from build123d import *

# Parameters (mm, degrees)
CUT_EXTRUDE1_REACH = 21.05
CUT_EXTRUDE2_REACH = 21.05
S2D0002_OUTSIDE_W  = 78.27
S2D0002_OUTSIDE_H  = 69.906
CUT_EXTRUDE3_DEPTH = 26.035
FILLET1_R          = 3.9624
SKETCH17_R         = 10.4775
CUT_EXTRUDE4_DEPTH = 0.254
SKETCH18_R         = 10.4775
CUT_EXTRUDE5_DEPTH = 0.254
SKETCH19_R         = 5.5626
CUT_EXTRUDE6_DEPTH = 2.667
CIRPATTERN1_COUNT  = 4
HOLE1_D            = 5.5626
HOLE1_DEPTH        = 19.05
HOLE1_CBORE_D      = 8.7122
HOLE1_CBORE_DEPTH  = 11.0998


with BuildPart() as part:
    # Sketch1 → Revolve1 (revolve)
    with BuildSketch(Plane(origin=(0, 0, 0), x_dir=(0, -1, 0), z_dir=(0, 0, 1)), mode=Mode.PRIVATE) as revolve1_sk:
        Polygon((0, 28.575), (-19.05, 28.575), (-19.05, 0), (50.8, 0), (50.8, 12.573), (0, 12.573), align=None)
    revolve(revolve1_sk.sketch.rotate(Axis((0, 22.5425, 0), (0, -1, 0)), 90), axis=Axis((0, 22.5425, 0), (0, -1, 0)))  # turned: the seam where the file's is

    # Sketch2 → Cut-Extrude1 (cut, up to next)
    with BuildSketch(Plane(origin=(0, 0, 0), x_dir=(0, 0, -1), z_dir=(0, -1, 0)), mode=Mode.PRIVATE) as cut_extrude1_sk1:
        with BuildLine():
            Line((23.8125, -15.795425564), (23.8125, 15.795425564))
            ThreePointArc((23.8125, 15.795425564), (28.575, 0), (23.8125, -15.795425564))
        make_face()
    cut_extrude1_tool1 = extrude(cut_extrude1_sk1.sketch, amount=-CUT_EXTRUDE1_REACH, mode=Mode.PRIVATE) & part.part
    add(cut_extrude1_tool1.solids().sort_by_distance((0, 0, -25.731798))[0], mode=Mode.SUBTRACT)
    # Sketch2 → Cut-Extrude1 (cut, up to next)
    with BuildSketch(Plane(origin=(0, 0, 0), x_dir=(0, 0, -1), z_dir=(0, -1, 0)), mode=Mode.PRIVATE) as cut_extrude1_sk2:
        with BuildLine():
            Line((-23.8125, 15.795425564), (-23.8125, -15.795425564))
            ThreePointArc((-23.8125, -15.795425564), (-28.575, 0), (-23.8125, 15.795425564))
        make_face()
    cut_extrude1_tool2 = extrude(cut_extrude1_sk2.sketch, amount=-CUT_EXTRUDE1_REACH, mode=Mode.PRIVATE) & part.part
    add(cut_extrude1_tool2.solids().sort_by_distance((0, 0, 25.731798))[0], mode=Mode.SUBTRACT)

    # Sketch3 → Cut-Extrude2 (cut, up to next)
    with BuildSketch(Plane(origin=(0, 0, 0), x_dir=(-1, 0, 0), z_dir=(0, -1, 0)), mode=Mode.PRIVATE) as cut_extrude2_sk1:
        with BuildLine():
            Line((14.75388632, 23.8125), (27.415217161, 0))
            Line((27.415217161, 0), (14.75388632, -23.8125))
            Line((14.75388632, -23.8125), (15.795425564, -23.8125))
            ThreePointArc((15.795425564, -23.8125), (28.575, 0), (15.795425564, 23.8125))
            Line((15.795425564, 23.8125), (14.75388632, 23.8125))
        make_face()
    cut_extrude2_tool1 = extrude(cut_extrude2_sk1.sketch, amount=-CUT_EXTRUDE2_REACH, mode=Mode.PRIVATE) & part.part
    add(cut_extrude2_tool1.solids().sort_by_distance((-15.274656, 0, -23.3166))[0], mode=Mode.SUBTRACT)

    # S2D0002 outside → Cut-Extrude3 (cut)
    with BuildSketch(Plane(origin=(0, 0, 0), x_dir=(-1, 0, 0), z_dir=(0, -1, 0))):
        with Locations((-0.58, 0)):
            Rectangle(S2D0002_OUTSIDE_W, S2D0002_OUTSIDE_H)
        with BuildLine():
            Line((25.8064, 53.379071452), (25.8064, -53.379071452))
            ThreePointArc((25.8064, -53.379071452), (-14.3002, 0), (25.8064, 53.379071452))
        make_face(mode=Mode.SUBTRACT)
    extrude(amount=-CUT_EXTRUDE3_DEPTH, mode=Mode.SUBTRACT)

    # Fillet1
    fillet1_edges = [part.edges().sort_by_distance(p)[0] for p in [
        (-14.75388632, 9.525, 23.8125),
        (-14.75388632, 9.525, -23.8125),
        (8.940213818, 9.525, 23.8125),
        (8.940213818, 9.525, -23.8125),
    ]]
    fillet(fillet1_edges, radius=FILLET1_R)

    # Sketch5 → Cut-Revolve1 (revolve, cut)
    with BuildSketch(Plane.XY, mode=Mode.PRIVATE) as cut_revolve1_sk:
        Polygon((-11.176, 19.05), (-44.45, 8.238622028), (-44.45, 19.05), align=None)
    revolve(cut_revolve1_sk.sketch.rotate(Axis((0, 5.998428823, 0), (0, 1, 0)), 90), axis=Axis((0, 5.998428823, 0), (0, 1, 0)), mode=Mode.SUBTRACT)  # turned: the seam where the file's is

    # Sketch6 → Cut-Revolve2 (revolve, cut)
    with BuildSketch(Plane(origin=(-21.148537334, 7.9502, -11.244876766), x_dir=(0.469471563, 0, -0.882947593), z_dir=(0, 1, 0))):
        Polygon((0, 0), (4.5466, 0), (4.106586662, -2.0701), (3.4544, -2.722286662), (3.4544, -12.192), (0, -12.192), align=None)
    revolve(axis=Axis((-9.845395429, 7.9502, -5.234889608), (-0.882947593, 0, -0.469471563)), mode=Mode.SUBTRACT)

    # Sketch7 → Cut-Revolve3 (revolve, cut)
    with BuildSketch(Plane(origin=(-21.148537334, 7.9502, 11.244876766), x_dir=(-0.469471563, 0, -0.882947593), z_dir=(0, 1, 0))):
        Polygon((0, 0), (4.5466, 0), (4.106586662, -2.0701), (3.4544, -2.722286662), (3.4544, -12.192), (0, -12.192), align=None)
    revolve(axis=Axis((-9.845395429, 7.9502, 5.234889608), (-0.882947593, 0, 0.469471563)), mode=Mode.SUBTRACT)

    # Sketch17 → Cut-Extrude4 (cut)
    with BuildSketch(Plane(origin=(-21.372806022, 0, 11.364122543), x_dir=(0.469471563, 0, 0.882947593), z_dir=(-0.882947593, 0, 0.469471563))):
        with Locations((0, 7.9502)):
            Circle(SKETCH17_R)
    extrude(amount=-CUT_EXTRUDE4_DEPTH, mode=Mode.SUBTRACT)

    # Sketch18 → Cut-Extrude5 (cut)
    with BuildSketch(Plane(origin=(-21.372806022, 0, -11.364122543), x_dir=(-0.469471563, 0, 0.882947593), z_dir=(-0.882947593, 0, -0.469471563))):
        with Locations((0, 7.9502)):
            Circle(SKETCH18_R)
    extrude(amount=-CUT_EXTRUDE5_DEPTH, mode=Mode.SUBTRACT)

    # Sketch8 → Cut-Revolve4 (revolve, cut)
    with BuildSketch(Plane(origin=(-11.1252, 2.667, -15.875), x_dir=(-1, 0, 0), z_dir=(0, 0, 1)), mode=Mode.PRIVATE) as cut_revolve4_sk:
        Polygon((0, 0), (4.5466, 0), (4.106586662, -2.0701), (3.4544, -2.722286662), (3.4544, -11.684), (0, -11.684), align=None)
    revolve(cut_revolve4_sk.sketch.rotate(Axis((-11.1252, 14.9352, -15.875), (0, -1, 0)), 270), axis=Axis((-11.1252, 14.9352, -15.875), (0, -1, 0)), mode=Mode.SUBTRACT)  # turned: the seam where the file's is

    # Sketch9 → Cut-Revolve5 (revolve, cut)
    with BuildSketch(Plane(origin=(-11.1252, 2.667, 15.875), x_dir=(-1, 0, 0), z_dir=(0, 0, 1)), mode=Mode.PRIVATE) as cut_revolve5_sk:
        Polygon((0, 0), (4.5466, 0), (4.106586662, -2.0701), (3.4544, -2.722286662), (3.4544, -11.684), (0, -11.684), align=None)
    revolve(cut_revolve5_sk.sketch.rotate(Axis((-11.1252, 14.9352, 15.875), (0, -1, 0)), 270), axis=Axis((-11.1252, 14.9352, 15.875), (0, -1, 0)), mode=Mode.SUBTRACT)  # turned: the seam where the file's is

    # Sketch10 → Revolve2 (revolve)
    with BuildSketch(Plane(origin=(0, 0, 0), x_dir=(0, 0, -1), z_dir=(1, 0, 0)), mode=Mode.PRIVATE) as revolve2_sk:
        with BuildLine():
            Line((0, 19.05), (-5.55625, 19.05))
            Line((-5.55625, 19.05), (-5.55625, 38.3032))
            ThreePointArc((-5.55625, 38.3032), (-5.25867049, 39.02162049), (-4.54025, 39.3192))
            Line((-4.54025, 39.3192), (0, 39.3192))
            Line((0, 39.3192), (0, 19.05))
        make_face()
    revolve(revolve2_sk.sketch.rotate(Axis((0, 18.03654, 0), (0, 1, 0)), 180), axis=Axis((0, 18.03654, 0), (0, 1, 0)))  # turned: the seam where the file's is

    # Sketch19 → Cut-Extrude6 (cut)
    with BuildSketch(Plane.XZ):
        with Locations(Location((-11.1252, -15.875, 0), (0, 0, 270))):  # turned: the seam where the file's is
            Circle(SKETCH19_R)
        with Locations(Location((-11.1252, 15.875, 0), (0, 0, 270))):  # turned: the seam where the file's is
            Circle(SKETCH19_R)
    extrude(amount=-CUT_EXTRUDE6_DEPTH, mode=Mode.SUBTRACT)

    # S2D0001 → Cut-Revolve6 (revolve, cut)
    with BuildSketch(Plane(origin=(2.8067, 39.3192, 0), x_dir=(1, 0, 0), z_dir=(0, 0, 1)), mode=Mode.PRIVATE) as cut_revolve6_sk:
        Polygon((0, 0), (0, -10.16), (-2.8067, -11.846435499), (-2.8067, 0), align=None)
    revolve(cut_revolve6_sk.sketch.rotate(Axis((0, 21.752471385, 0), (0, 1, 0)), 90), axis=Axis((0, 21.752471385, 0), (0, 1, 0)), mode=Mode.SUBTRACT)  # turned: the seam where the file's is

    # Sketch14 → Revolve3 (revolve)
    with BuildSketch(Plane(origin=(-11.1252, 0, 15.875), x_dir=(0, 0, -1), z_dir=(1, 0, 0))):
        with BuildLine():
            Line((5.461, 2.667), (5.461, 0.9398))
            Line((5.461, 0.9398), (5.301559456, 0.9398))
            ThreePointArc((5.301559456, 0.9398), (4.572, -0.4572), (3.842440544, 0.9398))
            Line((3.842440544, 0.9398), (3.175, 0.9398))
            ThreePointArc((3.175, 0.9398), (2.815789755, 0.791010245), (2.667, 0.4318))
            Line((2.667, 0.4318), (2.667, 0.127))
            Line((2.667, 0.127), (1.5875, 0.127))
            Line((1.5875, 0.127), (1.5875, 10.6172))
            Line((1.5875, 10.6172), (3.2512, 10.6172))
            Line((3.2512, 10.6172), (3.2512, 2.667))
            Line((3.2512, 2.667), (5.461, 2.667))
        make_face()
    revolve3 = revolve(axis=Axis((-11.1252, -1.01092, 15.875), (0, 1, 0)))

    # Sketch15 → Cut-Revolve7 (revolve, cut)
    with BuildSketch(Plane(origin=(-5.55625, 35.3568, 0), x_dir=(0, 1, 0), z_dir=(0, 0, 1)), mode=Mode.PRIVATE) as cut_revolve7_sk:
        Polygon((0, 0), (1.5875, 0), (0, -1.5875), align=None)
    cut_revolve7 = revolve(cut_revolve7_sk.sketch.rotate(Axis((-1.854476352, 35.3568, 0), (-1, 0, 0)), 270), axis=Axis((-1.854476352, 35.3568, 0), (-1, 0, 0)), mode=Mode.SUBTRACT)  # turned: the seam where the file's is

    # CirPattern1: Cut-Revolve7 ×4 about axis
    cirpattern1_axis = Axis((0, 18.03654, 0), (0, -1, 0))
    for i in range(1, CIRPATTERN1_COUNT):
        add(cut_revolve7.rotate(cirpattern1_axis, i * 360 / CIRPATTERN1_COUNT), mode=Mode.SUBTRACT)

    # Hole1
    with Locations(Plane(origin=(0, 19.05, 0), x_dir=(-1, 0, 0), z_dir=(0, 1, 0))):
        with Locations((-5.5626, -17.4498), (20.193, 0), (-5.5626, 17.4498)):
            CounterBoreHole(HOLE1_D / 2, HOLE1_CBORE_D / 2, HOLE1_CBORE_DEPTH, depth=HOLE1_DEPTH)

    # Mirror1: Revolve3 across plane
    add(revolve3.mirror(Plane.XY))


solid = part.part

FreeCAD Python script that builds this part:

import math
import FreeCAD as App
import Part
import Sketcher

V = App.Vector
Q = App.Units.Quantity


def edges_at(feature, points):
    """Names of the edges that pass closest to the given points."""
    edges = feature.Shape.Edges
    near = lambda p: min(range(len(edges)), key=lambda i: edges[i].distToShape(Part.Vertex(*p))[0])
    return sorted({f"Edge{near(p) + 1}" for p in points})


def add_polygon(sketch, points):
    """Adds a closed chain of lines whose ends are joined by coincident constraints."""
    first, n = sketch.GeometryCount, len(points)
    for a, b in zip(points, points[1:] + points[:1]):
        sketch.addGeometry(Part.LineSegment(App.Vector(*a, 0), App.Vector(*b, 0)), False)
    for i in range(n):
        sketch.addConstraint(Sketcher.Constraint("Coincident", first + i, 2, first + (i + 1) % n, 1))

doc = App.newDocument("Part")
body = doc.addObject("PartDesign::Body", "Body")

sketch1 = body.newObject("Sketcher::SketchObject", "Sketch")
sketch1.AttachmentSupport = (doc.getObject("XY_Plane"), [""])
sketch1.MapMode = "FlatFace"
add_polygon(sketch1, [(29, 0), (29, 19), (0, 19), (0, -51), (13, -51), (13, 0)])
sketch1.addConstraint(Sketcher.Constraint("Vertical", 0))
sketch1.addConstraint(Sketcher.Constraint("Horizontal", 1))
sketch1.addConstraint(Sketcher.Constraint("Vertical", 2))
sketch1.addConstraint(Sketcher.Constraint("Horizontal", 3))
sketch1.addConstraint(Sketcher.Constraint("Vertical", 4))
sketch1.addConstraint(Sketcher.Constraint("Horizontal", 5))
sketch1.addConstraint(Sketcher.Constraint("PointOnObject", 1, 2, -2))
sketch1.addConstraint(Sketcher.Constraint("PointOnObject", 4, 2, -1))
sketch1.addConstraint(Sketcher.Constraint("DistanceY", 4, 1, 4, 2, Q("2 in")))
sketch1.addConstraint(Sketcher.Constraint("DistanceX", 5, 1, 5, 2, Q("0.63 in")))
sketch1.addConstraint(Sketcher.Constraint("DistanceY", 0, 1, 0, 2, Q("0.75 in")))
sketch1.addConstraint(Sketcher.Constraint("DistanceX", 1, 2, 1, 1, Q("1.125 in")))
revolution = body.newObject("PartDesign::Revolution", "Revolution")
revolution.Profile = sketch1
revolution.ReferenceAxis = (sketch1, ["V_Axis"])
revolution.Angle = 360

sketch2 = body.newObject("Sketcher::SketchObject", "Sketch001")
sketch2.AttachmentSupport = (doc.getObject("XZ_Plane"), [""])
sketch2.MapMode = "FlatFace"
sketch2.addGeometry(Part.LineSegment(V(16, -24, 0), V(-16, -24, 0)), False)
sketch2.addGeometry(Part.ArcOfCircle(Part.Circle(V(0, 0, 0), V(0, 0, 1), 29), math.radians(-124), math.radians(-56)), False)
sketch2.addConstraint(Sketcher.Constraint("Coincident", 0, 1, 1, 2))
sketch2.addConstraint(Sketcher.Constraint("Coincident", 1, 1, 0, 2))
sketch2.addConstraint(Sketcher.Constraint("Horizontal", 0))
sketch2.addConstraint(Sketcher.Constraint("Coincident", 1, 3, -1, 1))
sketch2.addConstraint(Sketcher.Constraint("Radius", 1, Q("1.125 in")))
sketch2.addConstraint(Sketcher.Constraint("DistanceY", 0, 1, -1, 1, Q("0.9375 in")))
pocket1 = body.newObject("PartDesign::Pocket", "Pocket")
pocket1.Profile = sketch2
pocket1.Type = "UpToFirst"

sketch3 = body.newObject("Sketcher::SketchObject", "Sketch002")
sketch3.AttachmentSupport = (doc.getObject("XZ_Plane"), [""])
sketch3.MapMode = "FlatFace"
sketch3.addGeometry(Part.LineSegment(V(-16, 24, 0), V(16, 24, 0)), False)
sketch3.addGeometry(Part.ArcOfCircle(Part.Circle(V(0, 0, 0), V(0, 0, 1), 29), math.radians(56), math.radians(124)), False)
sketch3.addConstraint(Sketcher.Constraint("Coincident", 0, 1, 1, 2))
sketch3.addConstraint(Sketcher.Constraint("Coincident", 1, 1, 0, 2))
sketch3.addConstraint(Sketcher.Constraint("Horizontal", 0))
sketch3.addConstraint(Sketcher.Constraint("Coincident", 1, 3, -1, 1))
sketch3.addConstraint(Sketcher.Constraint("Radius", 1, Q("1.125 in")))
sketch3.addConstraint(Sketcher.Constraint("DistanceY", -1, 1, 0, 1, Q("0.9375 in")))
pocket2 = body.newObject("PartDesign::Pocket", "Pocket001")
pocket2.Profile = sketch3
pocket2.Type = "UpToFirst"

sketch4 = body.newObject("Sketcher::SketchObject", "Sketch003")
sketch4.AttachmentSupport = (doc.getObject("XZ_Plane"), [""])
sketch4.MapMode = "FlatFace"
sketch4.addGeometry(Part.LineSegment(V(-14.8, -23.8, 0), V(-27.4, 0, 0)), False)
sketch4.addGeometry(Part.LineSegment(V(-27.4, 0, 0), V(-14.8, 23.8, 0)), False)
sketch4.addGeometry(Part.LineSegment(V(-14.8, 23.8, 0), V(-15.8, 23.8, 0)), False)
sketch4.addGeometry(Part.ArcOfCircle(Part.Circle(V(0, 0, 0), V(0, 0, 1), 28.6), math.radians(124), math.radians(236)), False)
sketch4.addGeometry(Part.LineSegment(V(-15.8, -23.8, 0), V(-14.8, -23.8, 0)), False)
sketch4.addConstraint(Sketcher.Constraint("Coincident", 0, 2, 1, 1))
sketch4.addConstraint(Sketcher.Constraint("Coincident", 1, 2, 2, 1))
sketch4.addConstraint(Sketcher.Constraint("Coincident", 2, 2, 3, 1))
sketch4.addConstraint(Sketcher.Constraint("Coincident", 3, 2, 4, 1))
sketch4.addConstraint(Sketcher.Constraint("Coincident", 4, 2, 0, 1))
sketch4.addConstraint(Sketcher.Constraint("Horizontal", 2))
sketch4.addConstraint(Sketcher.Constraint("Horizontal", 4))
sketch4.addConstraint(Sketcher.Constraint("Coincident", 3, 3, -1, 1))
sketch4.addConstraint(Sketcher.Constraint("Symmetric", 1, 2, 4, 2, -1))
sketch4.addConstraint(Sketcher.Constraint("PointOnObject", 0, 2, -1))
sketch4.addConstraint(Sketcher.Constraint("Angle", 0, Q("118 deg")))
sketch4.addConstraint(Sketcher.Constraint("Radius", 3, Q("1.125 in")))
sketch4.addConstraint(Sketcher.Constraint("DistanceY", -1, 1, 1, 2, Q("0.9375 in")))
sketch4.addConstraint(Sketcher.Constraint("DistanceX", 2, 2, 2, 1, 1.041539))
pocket3 = body.newObject("PartDesign::Pocket", "Pocket002")
pocket3.Profile = sketch4
pocket3.Type = "UpToFirst"

sketch5 = body.newObject("Sketcher::SketchObject", "Sketch004")
sketch5.AttachmentSupport = (doc.getObject("XZ_Plane"), [""])
sketch5.MapMode = "FlatFace"
sketch5.addGeometry(Part.LineSegment(V(40, -35, 0), V(40, 35, 0)), False)
sketch5.addGeometry(Part.LineSegment(V(40, 35, 0), V(2, 35, 0)), False)
sketch5.addGeometry(Part.ArcOfCircle(Part.Circle(V(-41, 0, 0), V(0, 0, 1), 56), math.radians(-39), math.radians(39)), False)
sketch5.addGeometry(Part.LineSegment(V(2, -35, 0), V(40, -35, 0)), False)
add_polygon(sketch5, [(-26, -35), (-26, 35), (-39, 35), (-39, -35)])
sketch5.addConstraint(Sketcher.Constraint("Coincident", 0, 2, 1, 1))
sketch5.addConstraint(Sketcher.Constraint("Coincident", 1, 2, 2, 2))
sketch5.addConstraint(Sketcher.Constraint("Coincident", 2, 1, 3, 1))
sketch5.addConstraint(Sketcher.Constraint("Coincident", 3, 2, 0, 1))
sketch5.addConstraint(Sketcher.Constraint("Vertical", 0))
sketch5.addConstraint(Sketcher.Constraint("Horizontal", 1))
sketch5.addConstraint(Sketcher.Constraint("Horizontal", 3))
sketch5.addConstraint(Sketcher.Constraint("Vertical", 4))
sketch5.addConstraint(Sketcher.Constraint("Horizontal", 5))
sketch5.addConstraint(Sketcher.Constraint("Vertical", 6))
sketch5.addConstraint(Sketcher.Constraint("Horizontal", 7))
sketch5.addConstraint(Sketcher.Constraint("Symmetric", 1, 2, 2, 1, -1))
sketch5.addConstraint(Sketcher.Constraint("Horizontal", 1, 2, 4, 2))
sketch5.addConstraint(Sketcher.Constraint("Horizontal", 3, 2, 6, 2))
sketch5.addConstraint(Sketcher.Constraint("Radius", 2, Q("2.188 in")))
sketch5.addConstraint(Sketcher.Constraint("DistanceX", 2, 3, -1, 1, Q("1.625 in")))
sketch5.addConstraint(Sketcher.Constraint("DistanceX", 4, 2, -1, 1, Q("1.016 in")))
sketch5.addConstraint(Sketcher.Constraint("DistanceX", 5, 2, 5, 1, 12.7486))
sketch5.addConstraint(Sketcher.Constraint("DistanceY", 0, 1, 0, 2, 69.906))
sketch5.addConstraint(Sketcher.Constraint("DistanceX", 1, 2, 1, 1, 37.78247))
pocket4 = body.newObject("PartDesign::Pocket", "Pocket003")
pocket4.Profile = sketch5
pocket4.Length = Q("1.025 in")
doc.recompute()

fillet = body.newObject("PartDesign::Fillet", "Fillet")
fillet.Base = (pocket4, edges_at(pocket4, [
    (-14.754, 9.525, 23.812),
    (-14.754, 9.525, -23.812),
    (8.94, 9.525, 23.812),
    (8.94, 9.525, -23.812),
]))
fillet.Radius = Q("0.156 in")

sketch6 = body.newObject("Sketcher::SketchObject", "Sketch005")
sketch6.AttachmentSupport = (doc.getObject("XY_Plane"), [""])
sketch6.MapMode = "FlatFace"
add_polygon(sketch6, [(-44, 8), (-11, 19), (-44, 19)])
sketch6.addConstraint(Sketcher.Constraint("Horizontal", 1))
sketch6.addConstraint(Sketcher.Constraint("Vertical", 2))
sketch6.addConstraint(Sketcher.Constraint("Angle", 0, Q("18 deg")))
sketch6.addConstraint(Sketcher.Constraint("DistanceX", 1, 2, 1, 1, Q("1.31 in")))
sketch6.addConstraint(Sketcher.Constraint("DistanceX", 0, 2, -1, 1, Q("0.44 in")))
sketch6.addConstraint(Sketcher.Constraint("DistanceY", -1, 1, 0, 2, Q("0.75 in")))
groove = body.newObject("PartDesign::Groove", "Groove")
groove.Profile = sketch6
groove.ReferenceAxis = (sketch6, ["V_Axis"])
groove.Angle = 360

sketch7 = body.newObject("Sketcher::SketchObject", "Sketch006")
sketch7.AttachmentSupport = (doc.getObject("XZ_Plane"), [""])
sketch7.MapMode = "FlatFace"
sketch7.AttachmentOffset = App.Placement(V(0, 0, -0.313 * 25.4), App.Rotation())
add_polygon(sketch7, [(-19, -15.3), (-21.1, -11.2), (-10.4, -5.5), (-8.8, -8.6), (-17.1, -13), (-17.4, -13.9)])
sketch7.addGeometry(Part.LineSegment(V(-10.4, -5.5, 0), V(-21.1, -11.2, 0)), True)
sketch7.addConstraint(Sketcher.Constraint("Coincident", 6, 1, 1, 2))
sketch7.addConstraint(Sketcher.Constraint("Coincident", 6, 2, 0, 2))
sketch7.addConstraint(Sketcher.Constraint("Perpendicular", 0, 1))
sketch7.addConstraint(Sketcher.Constraint("Perpendicular", 1, 2))
sketch7.addConstraint(Sketcher.Constraint("Perpendicular", 2, 3))
sketch7.addConstraint(Sketcher.Constraint("Angle", 0, Q("118 deg")))
sketch7.addConstraint(Sketcher.Constraint("Angle", 4, Q("-107 deg")))
sketch7.addConstraint(Sketcher.Constraint("Angle", 5, Q("-140 deg")))
sketch7.addConstraint(Sketcher.Constraint("Distance", 1, Q("0.48 in")))
sketch7.addConstraint(Sketcher.Constraint("Distance", 0, Q("0.179 in")))
sketch7.addConstraint(Sketcher.Constraint("Distance", 2, Q("0.136 in")))
sketch7.addConstraint(Sketcher.Constraint("DistanceX", 4, 2, 2, 2, Q("0.3398002 in")))
sketch7.addConstraint(Sketcher.Constraint("DistanceX", 1, 2, -1, 1, 10.38364))
sketch7.addConstraint(Sketcher.Constraint("DistanceY", 1, 2, -1, 1, 5.521079))
groove2 = body.newObject("PartDesign::Groove", "Groove001")
groove2.Profile = sketch7
groove2.ReferenceAxis = (sketch7, ["Axis0"])
groove2.Angle = 360

sketch8 = body.newObject("Sketcher::SketchObject", "Sketch007")
sketch8.AttachmentSupport = (doc.getObject("XZ_Plane"), [""])
sketch8.MapMode = "FlatFace"
sketch8.AttachmentOffset = App.Placement(V(0, 0, -0.313 * 25.4), App.Rotation())
add_polygon(sketch8, [(-23.3, 7.2), (-21.1, 11.2), (-10.4, 5.5), (-12, 2.5), (-20.4, 6.9), (-21.2, 6.6)])
sketch8.addGeometry(Part.LineSegment(V(-10.4, 5.5, 0), V(-21.1, 11.2, 0)), True)
sketch8.addConstraint(Sketcher.Constraint("Coincident", 6, 1, 1, 2))
sketch8.addConstraint(Sketcher.Constraint("Coincident", 6, 2, 0, 2))
sketch8.addConstraint(Sketcher.Constraint("Perpendicular", 0, 1))
sketch8.addConstraint(Sketcher.Constraint("Perpendicular", 1, 2))
sketch8.addConstraint(Sketcher.Constraint("Perpendicular", 2, 3))
sketch8.addConstraint(Sketcher.Constraint("Angle", 0, Q("62 deg")))
sketch8.addConstraint(Sketcher.Constraint("Angle", 4, Q("-163 deg")))
sketch8.addConstraint(Sketcher.Constraint("Angle", 5, Q("164 deg")))
sketch8.addConstraint(Sketcher.Constraint("Distance", 1, Q("0.48 in")))
sketch8.addConstraint(Sketcher.Constraint("Distance", 0, Q("0.179 in")))
sketch8.addConstraint(Sketcher.Constraint("Distance", 2, Q("0.136 in")))
sketch8.addConstraint(Sketcher.Constraint("Distance", 4, 0.922331))
sketch8.addConstraint(Sketcher.Constraint("DistanceX", 1, 2, -1, 1, 10.38364))
sketch8.addConstraint(Sketcher.Constraint("DistanceY", -1, 1, 1, 2, 5.521079))
groove3 = body.newObject("PartDesign::Groove", "Groove002")
groove3.Profile = sketch8
groove3.ReferenceAxis = (sketch8, ["Axis0"])
groove3.Angle = 360

sketch9 = body.newObject("Sketcher::SketchObject", "Sketch008")
sketch9.Placement = App.Placement(V(-21.372806, 0, 11.364123), App.Rotation(V(0.469471563, 0, 0.882947593), V(0, 1, 0), V(-0.882947593, 0, 0.469471563), "ZXY"))
sketch9.addGeometry(Part.Circle(V(0, 8, 0), V(0, 0, 1), 10), False)
sketch9.addConstraint(Sketcher.Constraint("PointOnObject", 0, 3, -2))
sketch9.addConstraint(Sketcher.Constraint("Diameter", 0, Q("0.825 in")))
sketch9.addConstraint(Sketcher.Constraint("DistanceY", -1, 1, 0, 3, Q("0.313 in")))
pocket5 = body.newObject("PartDesign::Pocket", "Pocket004")
pocket5.Profile = sketch9
pocket5.Length = Q("0.01 in")

sketch10 = body.newObject("Sketcher::SketchObject", "Sketch009")
sketch10.Placement = App.Placement(V(-21.372806, 0, -11.364123), App.Rotation(V(-0.469471563, 0, 0.882947593), V(0, 1, 0), V(-0.882947593, 0, -0.469471563), "ZXY"))
sketch10.addGeometry(Part.Circle(V(0, 8, 0), V(0, 0, 1), 10), False)
sketch10.addConstraint(Sketcher.Constraint("PointOnObject", 0, 3, -2))
sketch10.addConstraint(Sketcher.Constraint("Diameter", 0, Q("0.825 in")))
sketch10.addConstraint(Sketcher.Constraint("DistanceY", -1, 1, 0, 3, Q("0.313 in")))
pocket6 = body.newObject("PartDesign::Pocket", "Pocket005")
pocket6.Profile = sketch10
pocket6.Length = Q("0.01 in")

sketch11 = body.newObject("Sketcher::SketchObject", "Sketch010")
sketch11.AttachmentSupport = (doc.getObject("XY_Plane"), [""])
sketch11.MapMode = "FlatFace"
sketch11.AttachmentOffset = App.Placement(V(0, 0, -0.625 * 25.4), App.Rotation())
add_polygon(sketch11, [(-15.7, 2.7), (-11.1, 2.7), (-11.1, 14.4), (-14.6, 14.4), (-14.6, 5.4), (-15.2, 4.7)])
sketch11.addGeometry(Part.LineSegment(V(-11.1, 14.4, 0), V(-11.1, 2.7, 0)), True)
sketch11.addConstraint(Sketcher.Constraint("Horizontal", 0))
sketch11.addConstraint(Sketcher.Constraint("Vertical", 1))
sketch11.addConstraint(Sketcher.Constraint("Horizontal", 2))
sketch11.addConstraint(Sketcher.Constraint("Vertical", 3))
sketch11.addConstraint(Sketcher.Constraint("Vertical", 6))
sketch11.addConstraint(Sketcher.Constraint("Coincident", 6, 1, 1, 2))
sketch11.addConstraint(Sketcher.Constraint("Horizontal", 5, 2, 6, 2))
sketch11.addConstraint(Sketcher.Constraint("Angle", 4, Q("-135 deg")))
sketch11.addConstraint(Sketcher.Constraint("Angle", 5, Q("-102 deg")))
sketch11.addConstraint(Sketcher.Constraint("DistanceY", 1, 1, 1, 2, Q("0.46 in")))
sketch11.addConstraint(Sketcher.Constraint("DistanceX", 0, 1, 0, 2, Q("0.179 in")))
sketch11.addConstraint(Sketcher.Constraint("DistanceX", 2, 2, 2, 1, Q("0.136 in")))
sketch11.addConstraint(Sketcher.Constraint("DistanceX", 0, 2, -1, 1, Q("0.438 in")))
sketch11.addConstraint(Sketcher.Constraint("DistanceY", -1, 1, 0, 2, Q("0.105 in")))
sketch11.addConstraint(Sketcher.Constraint("DistanceY", -1, 1, 4, 2, Q("0.1865 in")))
groove4 = body.newObject("PartDesign::Groove", "Groove003")
groove4.Profile = sketch11
groove4.ReferenceAxis = (sketch11, ["Axis0"])
groove4.Angle = 360

sketch12 = body.newObject("Sketcher::SketchObject", "Sketch011")
sketch12.AttachmentSupport = (doc.getObject("XY_Plane"), [""])
sketch12.MapMode = "FlatFace"
sketch12.AttachmentOffset = App.Placement(V(0, 0, 0.625 * 25.4), App.Rotation())
add_polygon(sketch12, [(-15.7, 2.7), (-11.1, 2.7), (-11.1, 14.4), (-14.6, 14.4), (-14.6, 5.4), (-15.2, 4.7)])
sketch12.addGeometry(Part.LineSegment(V(-11.1, 14.4, 0), V(-11.1, 2.7, 0)), True)
sketch12.addConstraint(Sketcher.Constraint("Horizontal", 0))
sketch12.addConstraint(Sketcher.Constraint("Vertical", 1))
sketch12.addConstraint(Sketcher.Constraint("Horizontal", 2))
sketch12.addConstraint(Sketcher.Constraint("Vertical", 3))
sketch12.addConstraint(Sketcher.Constraint("Vertical", 6))
sketch12.addConstraint(Sketcher.Constraint("Coincident", 6, 1, 1, 2))
sketch12.addConstraint(Sketcher.Constraint("Horizontal", 5, 2, 6, 2))
sketch12.addConstraint(Sketcher.Constraint("Angle", 4, Q("-135 deg")))
sketch12.addConstraint(Sketcher.Constraint("Angle", 5, Q("-102 deg")))
sketch12.addConstraint(Sketcher.Constraint("DistanceY", 1, 1, 1, 2, Q("0.46 in")))
sketch12.addConstraint(Sketcher.Constraint("DistanceX", 0, 1, 0, 2, Q("0.179 in")))
sketch12.addConstraint(Sketcher.Constraint("DistanceX", 2, 2, 2, 1, Q("0.136 in")))
sketch12.addConstraint(Sketcher.Constraint("DistanceX", 0, 2, -1, 1, Q("0.438 in")))
sketch12.addConstraint(Sketcher.Constraint("DistanceY", -1, 1, 0, 2, Q("0.105 in")))
sketch12.addConstraint(Sketcher.Constraint("DistanceY", -1, 1, 4, 2, Q("0.1865 in")))
groove5 = body.newObject("PartDesign::Groove", "Groove004")
groove5.Profile = sketch12
groove5.ReferenceAxis = (sketch12, ["Axis0"])
groove5.Angle = 360

sketch13 = body.newObject("Sketcher::SketchObject", "Sketch012")
sketch13.AttachmentSupport = (doc.getObject("YZ_Plane"), [""])
sketch13.MapMode = "FlatFace"
sketch13.addGeometry(Part.LineSegment(V(19.1, 5.6, 0), V(19.1, 0, 0)), False)
sketch13.addGeometry(Part.LineSegment(V(19.1, 0, 0), V(39.3, 0, 0)), False)
sketch13.addGeometry(Part.LineSegment(V(39.3, 0, 0), V(39.3, 4.5, 0)), False)
sketch13.addGeometry(Part.ArcOfCircle(Part.Circle(V(38.3, 4.5, 0), V(0, 0, 1), 1), math.radians(0), math.radians(90)), False)
sketch13.addGeometry(Part.LineSegment(V(38.3, 5.6, 0), V(19.1, 5.6, 0)), False)
sketch13.addConstraint(Sketcher.Constraint("Coincident", 0, 2, 1, 1))
sketch13.addConstraint(Sketcher.Constraint("Coincident", 1, 2, 2, 1))
sketch13.addConstraint(Sketcher.Constraint("Tangent", 2, 2, 3, 1))
sketch13.addConstraint(Sketcher.Constraint("Tangent", 3, 2, 4, 1))
sketch13.addConstraint(Sketcher.Constraint("Coincident", 4, 2, 0, 1))
sketch13.addConstraint(Sketcher.Constraint("Vertical", 0))
sketch13.addConstraint(Sketcher.Constraint("Horizontal", 1))
sketch13.addConstraint(Sketcher.Constraint("Vertical", 2))
sketch13.addConstraint(Sketcher.Constraint("Horizontal", 4))
sketch13.addConstraint(Sketcher.Constraint("PointOnObject", 0, 2, -1))
sketch13.addConstraint(Sketcher.Constraint("Radius", 3, Q("0.04 in")))
sketch13.addConstraint(Sketcher.Constraint("DistanceX", 1, 1, 1, 2, Q("0.798 in")))
sketch13.addConstraint(Sketcher.Constraint("DistanceY", 0, 2, 0, 1, Q("0.21875 in")))
sketch13.addConstraint(Sketcher.Constraint("DistanceX", -1, 1, 0, 2, Q("0.75 in")))
revolution2 = body.newObject("PartDesign::Revolution", "Revolution001")
revolution2.Profile = sketch13
revolution2.ReferenceAxis = (sketch13, ["H_Axis"])
revolution2.Angle = 360

sketch14 = body.newObject("Sketcher::SketchObject", "Sketch013")
sketch14.AttachmentSupport = (doc.getObject("XZ_Plane"), [""])
sketch14.MapMode = "FlatFace"
sketch14.addGeometry(Part.Circle(V(-11, -16, 0), V(0, 0, 1), 6), False)
sketch14.addGeometry(Part.Circle(V(-11, 16, 0), V(0, 0, 1), 6), False)
sketch14.addConstraint(Sketcher.Constraint("Equal", 0, 1))
sketch14.addConstraint(Sketcher.Constraint("Symmetric", 0, 3, 1, 3, -1))
sketch14.addConstraint(Sketcher.Constraint("Diameter", 0, Q("0.438 in")))
sketch14.addConstraint(Sketcher.Constraint("DistanceY", 0, 3, 1, 3, Q("1.25 in")))
sketch14.addConstraint(Sketcher.Constraint("DistanceX", 0, 3, -1, 1, Q("0.438 in")))
pocket7 = body.newObject("PartDesign::Pocket", "Pocket006")
pocket7.Profile = sketch14
pocket7.Length = Q("0.105 in")

sketch15 = body.newObject("Sketcher::SketchObject", "Sketch014")
sketch15.AttachmentSupport = (doc.getObject("XY_Plane"), [""])
sketch15.MapMode = "FlatFace"
add_polygon(sketch15, [(2.8, 29.2), (2.8, 39.3), (0, 39.3), (0, 27.5)])
sketch15.addConstraint(Sketcher.Constraint("Vertical", 0))
sketch15.addConstraint(Sketcher.Constraint("Horizontal", 1))
sketch15.addConstraint(Sketcher.Constraint("Vertical", 2))
sketch15.addConstraint(Sketcher.Constraint("PointOnObject", 1, 2, -2))
sketch15.addConstraint(Sketcher.Constraint("DistanceY", 0, 1, 0, 2, Q("0.4 in")))
sketch15.addConstraint(Sketcher.Constraint("Angle", 3, Q("31 deg")))
sketch15.addConstraint(Sketcher.Constraint("DistanceX", 1, 2, 1, 1, Q("0.1105 in")))
sketch15.addConstraint(Sketcher.Constraint("DistanceY", -1, 1, 0, 2, Q("1.548 in")))
groove6 = body.newObject("PartDesign::Groove", "Groove005")
groove6.Profile = sketch15
groove6.ReferenceAxis = (sketch15, ["V_Axis"])
groove6.Angle = 360

sketch16 = body.newObject("Sketcher::SketchObject", "Sketch015")
sketch16.AttachmentSupport = (doc.getObject("YZ_Plane"), [""])
sketch16.MapMode = "FlatFace"
sketch16.AttachmentOffset = App.Placement(V(0, 0, -0.438 * 25.4), App.Rotation())
sketch16.addGeometry(Part.LineSegment(V(0.94, 10.41, 0), V(2.67, 10.41, 0)), False)
sketch16.addGeometry(Part.LineSegment(V(2.67, 10.41, 0), V(2.67, 12.62, 0)), False)
sketch16.addGeometry(Part.LineSegment(V(2.67, 12.62, 0), V(10.62, 12.62, 0)), False)
sketch16.addGeometry(Part.LineSegment(V(10.62, 12.62, 0), V(10.62, 14.29, 0)), False)
sketch16.addGeometry(Part.LineSegment(V(10.62, 14.29, 0), V(0.13, 14.29, 0)), False)
sketch16.addGeometry(Part.LineSegment(V(0.13, 14.29, 0), V(0.13, 13.21, 0)), False)
sketch16.addGeometry(Part.LineSegment(V(0.13, 13.21, 0), V(0.43, 13.21, 0)), False)
sketch16.addGeometry(Part.ArcOfCircle(Part.Circle(V(0.43, 12.7, 0), V(0, 0, 1), 0.51), math.radians(0), math.radians(90)), False)
sketch16.addGeometry(Part.LineSegment(V(0.94, 12.7, 0), V(0.94, 12.03, 0)), False)
sketch16.addGeometry(Part.ArcOfCircle(Part.Circle(V(0.43, 11.3, 0), V(0, 0, 1), 0.89), math.radians(55), math.radians(305)), False)
sketch16.addGeometry(Part.LineSegment(V(0.94, 10.57, 0), V(0.94, 10.41, 0)), False)
sketch16.addGeometry(Part.LineSegment(V(0.13, 15.88, 0), V(10.62, 15.88, 0)), True)
sketch16.addConstraint(Sketcher.Constraint("Coincident", 0, 2, 1, 1))
sketch16.addConstraint(Sketcher.Constraint("Coincident", 1, 2, 2, 1))
sketch16.addConstraint(Sketcher.Constraint("Coincident", 2, 2, 3, 1))
sketch16.addConstraint(Sketcher.Constraint("Coincident", 3, 2, 4, 1))
sketch16.addConstraint(Sketcher.Constraint("Coincident", 4, 2, 5, 1))
sketch16.addConstraint(Sketcher.Constraint("Coincident", 5, 2, 6, 1))
sketch16.addConstraint(Sketcher.Constraint("Tangent", 6, 2, 7, 2))
sketch16.addConstraint(Sketcher.Constraint("Tangent", 7, 1, 8, 1))
sketch16.addConstraint(Sketcher.Constraint("Coincident", 8, 2, 9, 1))
sketch16.addConstraint(Sketcher.Constraint("Coincident", 9, 2, 10, 1))
sketch16.addConstraint(Sketcher.Constraint("Coincident", 10, 2, 0, 1))
sketch16.addConstraint(Sketcher.Constraint("Horizontal", 0))
sketch16.addConstraint(Sketcher.Constraint("Vertical", 1))
sketch16.addConstraint(Sketcher.Constraint("Horizontal", 2))
sketch16.addConstraint(Sketcher.Constraint("Vertical", 3))
sketch16.addConstraint(Sketcher.Constraint("Horizontal", 4))
sketch16.addConstraint(Sketcher.Constraint("Vertical", 5))
sketch16.addConstraint(Sketcher.Constraint("Horizontal", 6))
sketch16.addConstraint(Sketcher.Constraint("Vertical", 8))
sketch16.addConstraint(Sketcher.Constraint("Vertical", 10))
sketch16.addConstraint(Sketcher.Constraint("Horizontal", 11))
sketch16.addConstraint(Sketcher.Constraint("Vertical", 7, 3, 9, 3))
sketch16.addConstraint(Sketcher.Constraint("Vertical", 8, 2, 9, 2))
sketch16.addConstraint(Sketcher.Constraint("Vertical", 5, 2, 11, 1))
sketch16.addConstraint(Sketcher.Constraint("Vertical", 3, 2, 11, 2))
sketch16.addConstraint(Sketcher.Constraint("Radius", 7, Q("0.02 in")))
sketch16.addConstraint(Sketcher.Constraint("Radius", 9, Q("0.035 in")))
sketch16.addConstraint(Sketcher.Constraint("DistanceY", -1, 1, 7, 3, Q("0.5 in")))
sketch16.addConstraint(Sketcher.Constraint("DistanceX", 4, 2, 1, 2, Q("0.1 in")))
sketch16.addConstraint(Sketcher.Constraint("DistanceX", 0, 1, 0, 2, Q("0.068 in")))
sketch16.addConstraint(Sketcher.Constraint("DistanceX", 2, 1, 2, 2, Q("0.313 in")))
sketch16.addConstraint(Sketcher.Constraint("DistanceY", 1, 1, 1, 2, Q("0.087 in")))
sketch16.addConstraint(Sketcher.Constraint("DistanceY", -1, 1, 0, 2, Q("0.41 in")))
sketch16.addConstraint(Sketcher.Constraint("DistanceY", 3, 1, 3, 2, Q("0.0655 in")))
sketch16.addConstraint(Sketcher.Constraint("DistanceX", -1, 1, 7, 3, Q("0.017 in")))
sketch16.addConstraint(Sketcher.Constraint("DistanceY", -1, 1, 9, 3, Q("0.445 in")))
sketch16.addConstraint(Sketcher.Constraint("DistanceY", -1, 1, 11, 1, Q("0.625 in")))
revolution3 = body.newObject("PartDesign::Revolution", "Revolution002")
revolution3.Profile = sketch16
revolution3.ReferenceAxis = (sketch16, ["Axis0"])
revolution3.Angle = 360

sketch17 = body.newObject("Sketcher::SketchObject", "Sketch016")
sketch17.AttachmentSupport = (doc.getObject("XY_Plane"), [""])
sketch17.MapMode = "FlatFace"
add_polygon(sketch17, [(-5.6, 36.9), (-5.6, 35.4), (-4, 35.4)])
sketch17.addGeometry(Part.LineSegment(V(-4, 35.4, 0), V(-5.6, 35.4, 0)), True)
sketch17.addConstraint(Sketcher.Constraint("Vertical", 0))
sketch17.addConstraint(Sketcher.Constraint("Horizontal", 1))
sketch17.addConstraint(Sketcher.Constraint("Horizontal", 3))
sketch17.addConstraint(Sketcher.Constraint("Coincident", 3, 1, 1, 2))
sketch17.addConstraint(Sketcher.Constraint("Vertical", 2, 2, 3, 2))
sketch17.addConstraint(Sketcher.Constraint("Equal", 3, 0))
sketch17.addConstraint(Sketcher.Constraint("DistanceX", 1, 1, 1, 2, Q("0.0625 in")))
sketch17.addConstraint(Sketcher.Constraint("DistanceX", 0, 2, -1, 1, Q("0.21875 in")))
sketch17.addConstraint(Sketcher.Constraint("DistanceY", -1, 1, 0, 2, Q("1.392 in")))
groove7 = body.newObject("PartDesign::Groove", "Groove006")
groove7.Profile = sketch17
groove7.ReferenceAxis = (sketch17, ["Axis0"])
groove7.Angle = 360
doc.recompute()

polarpattern = body.newObject("PartDesign::PolarPattern", "PolarPattern")
polarpattern.Originals = [groove7]
polarpattern.Axis = (doc.getObject("Y_Axis"), [""])
polarpattern.Angle = 360
polarpattern.Occurrences = 4
body.Tip = polarpattern

sketch18 = body.newObject("Sketcher::SketchObject", "Sketch017")
sketch18.AttachmentSupport = (doc.getObject("XZ_Plane"), [""])
sketch18.MapMode = "FlatFace"
sketch18.AttachmentOffset = App.Placement(V(0, 0, -0.75 * 25.4), App.Rotation())
sketch18.addGeometry(Part.Circle(V(5.6, -17.4, 0), V(0, 0, 1), 2.8), False)
sketch18.addGeometry(Part.Circle(V(-20.2, 0, 0), V(0, 0, 1), 2.8), False)
sketch18.addGeometry(Part.Circle(V(5.6, 17.4, 0), V(0, 0, 1), 2.8), False)
sketch18.addConstraint(Sketcher.Constraint("Equal", 0, 1))
sketch18.addConstraint(Sketcher.Constraint("Equal", 1, 2))
sketch18.addConstraint(Sketcher.Constraint("Symmetric", 0, 3, 2, 3, -1))
sketch18.addConstraint(Sketcher.Constraint("PointOnObject", 1, 3, -1))
sketch18.addConstraint(Sketcher.Constraint("Diameter", 0, Q("0.219 in")))
sketch18.addConstraint(Sketcher.Constraint("DistanceX", -1, 1, 0, 3, Q("0.219 in")))
sketch18.addConstraint(Sketcher.Constraint("DistanceY", 0, 3, -1, 1, Q("0.687 in")))
sketch18.addConstraint(Sketcher.Constraint("DistanceX", 1, 3, -1, 1, Q("0.795 in")))
doc.recompute()
hole = body.newObject("PartDesign::Hole", "Hole")
hole.Profile = sketch18
hole.ThreadType = "None"
hole.Diameter = Q("0.219 in")
hole.DepthType = "Dimension"
hole.Depth = Q("0.75 in")
hole.DrillPoint = "Flat"
hole.HoleCutType = "Counterbore"
hole.HoleCutDiameter = Q("0.343 in")
hole.HoleCutDepth = Q("0.437 in")
hole.Reversed = True
doc.recompute()

mirrored = body.newObject("PartDesign::Mirrored", "Mirrored")
mirrored.Originals = [revolution3]
mirrored.MirrorPlane = (doc.getObject("XY_Plane"), [""])
body.Tip = mirrored

doc.recompute()
